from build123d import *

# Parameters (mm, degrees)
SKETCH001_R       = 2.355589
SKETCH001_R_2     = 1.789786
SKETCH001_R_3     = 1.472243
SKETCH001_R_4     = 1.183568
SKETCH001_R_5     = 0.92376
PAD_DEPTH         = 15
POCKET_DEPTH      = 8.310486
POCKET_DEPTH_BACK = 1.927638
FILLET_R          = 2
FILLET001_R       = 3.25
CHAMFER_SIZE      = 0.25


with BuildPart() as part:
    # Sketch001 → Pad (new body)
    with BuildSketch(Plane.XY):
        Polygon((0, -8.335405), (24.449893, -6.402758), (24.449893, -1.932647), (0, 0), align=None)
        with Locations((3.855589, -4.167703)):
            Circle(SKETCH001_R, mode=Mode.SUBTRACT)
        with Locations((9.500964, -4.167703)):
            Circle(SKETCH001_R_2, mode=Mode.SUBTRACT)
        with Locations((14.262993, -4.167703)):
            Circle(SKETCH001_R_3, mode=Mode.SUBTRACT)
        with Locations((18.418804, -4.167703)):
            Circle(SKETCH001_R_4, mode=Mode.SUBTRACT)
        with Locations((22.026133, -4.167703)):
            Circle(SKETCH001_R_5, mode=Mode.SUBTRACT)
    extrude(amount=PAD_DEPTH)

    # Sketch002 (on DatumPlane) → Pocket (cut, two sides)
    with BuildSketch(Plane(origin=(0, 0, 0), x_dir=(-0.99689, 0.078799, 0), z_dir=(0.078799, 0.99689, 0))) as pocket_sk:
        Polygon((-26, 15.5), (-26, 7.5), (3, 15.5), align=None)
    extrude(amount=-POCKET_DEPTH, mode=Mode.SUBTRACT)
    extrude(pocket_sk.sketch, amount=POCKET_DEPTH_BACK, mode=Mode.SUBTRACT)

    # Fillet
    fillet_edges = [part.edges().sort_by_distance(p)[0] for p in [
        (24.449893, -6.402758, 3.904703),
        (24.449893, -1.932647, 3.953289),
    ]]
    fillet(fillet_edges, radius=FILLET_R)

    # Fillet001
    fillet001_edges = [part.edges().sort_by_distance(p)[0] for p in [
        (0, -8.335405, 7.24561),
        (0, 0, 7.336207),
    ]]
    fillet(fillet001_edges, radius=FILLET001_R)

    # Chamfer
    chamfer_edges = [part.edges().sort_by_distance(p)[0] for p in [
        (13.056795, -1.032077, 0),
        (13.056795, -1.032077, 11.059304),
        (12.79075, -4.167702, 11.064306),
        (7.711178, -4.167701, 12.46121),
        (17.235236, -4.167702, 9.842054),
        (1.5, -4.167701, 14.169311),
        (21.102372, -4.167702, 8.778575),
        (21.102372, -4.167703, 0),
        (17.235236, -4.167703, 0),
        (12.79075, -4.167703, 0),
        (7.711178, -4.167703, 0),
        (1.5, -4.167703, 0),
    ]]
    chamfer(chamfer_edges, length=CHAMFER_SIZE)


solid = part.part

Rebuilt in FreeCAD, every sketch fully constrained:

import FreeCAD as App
import Part
import Sketcher


def edges_at(feature, points):
    """Names of the edges that pass closest to the given points."""
    edges = feature.Shape.Edges
    near = lambda p: min(range(len(edges)), key=lambda i: edges[i].distToShape(Part.Vertex(*p))[0])
    return sorted({f"Edge{near(p) + 1}" for p in points})

doc = App.newDocument("Part")
body = doc.addObject("PartDesign::Body", "Body")

# Sketch on XY plane
sketch1 = body.newObject("Sketcher::SketchObject", "Sketch")
sketch1.AttachmentSupport = (doc.getObject("XY_Plane"), [""])
sketch1.MapMode = "FlatFace"
sketch1.addGeometry([
    Part.LineSegment(App.Vector(0, -8.335405, 0), App.Vector(24.449893, -6.402758, 0)),  # 0
    Part.LineSegment(App.Vector(24.449893, -6.402758, 0), App.Vector(24.449893, -1.932647, 0)),  # 1
    Part.LineSegment(App.Vector(24.449893, -1.932647, 0), App.Vector(0, 0, 0)),  # 2
    Part.LineSegment(App.Vector(0, 0, 0), App.Vector(0, -8.335405, 0)),  # 3
    Part.Circle(App.Vector(3.855589, -4.167703, 0), App.Vector(0, 0, 1), 2.355589),  # 4
    Part.Circle(App.Vector(9.500964, -4.167703, 0), App.Vector(0, 0, 1), 1.789786),  # 5
    Part.Circle(App.Vector(14.262993, -4.167703, 0), App.Vector(0, 0, 1), 1.472243),  # 6
    Part.Circle(App.Vector(18.418804, -4.167703, 0), App.Vector(0, 0, 1), 1.183568),  # 7
    Part.Circle(App.Vector(22.026133, -4.167703, 0), App.Vector(0, 0, 1), 0.92376),  # 8
], False)
sketch1.addConstraint([
    Sketcher.Constraint("Coincident", 0, 2, 1, 1),
    Sketcher.Constraint("Coincident", 1, 2, 2, 1),
    Sketcher.Constraint("Coincident", 2, 2, 3, 1),
    Sketcher.Constraint("Coincident", 3, 2, 0, 1),
    Sketcher.Constraint("Vertical", 1),
    Sketcher.Constraint("Vertical", 3),
    Sketcher.Constraint("Coincident", 2, 2, -1, 1),
    Sketcher.Constraint("Horizontal", 4, 3, 5, 3),
    Sketcher.Constraint("Horizontal", 5, 3, 6, 3),
    Sketcher.Constraint("Horizontal", 6, 3, 7, 3),
    Sketcher.Constraint("Horizontal", 7, 3, 8, 3),
    Sketcher.Constraint("Equal", 0, 2),
    Sketcher.Constraint("Diameter", 4, 4.711178),
    Sketcher.Constraint("Diameter", 8, 1.84752),
    Sketcher.Constraint("Diameter", 5, 3.579572),
    Sketcher.Constraint("Diameter", 6, 2.944486),
    Sketcher.Constraint("Diameter", 7, 2.367136),
    Sketcher.Constraint("DistanceY", 1, 1, 1, 2, 4.470111),
    Sketcher.Constraint("DistanceX", 6, 3, 0, 2, 10.1869),
    Sketcher.Constraint("DistanceY", 3, 2, 4, 3, 4.167702),
    Sketcher.Constraint("DistanceY", 3, 2, 3, 1, 8.335405),
    Sketcher.Constraint("DistanceX", -1, 1, 4, 3, 3.855589),
    Sketcher.Constraint("DistanceX", 5, 3, 6, 3, 4.762029),
    Sketcher.Constraint("DistanceX", 6, 3, 7, 3, 4.155811),
    Sketcher.Constraint("DistanceX", 7, 3, 8, 3, 3.607329),
    Sketcher.Constraint("Distance", 0, 24.526157),
])
pad1 = body.newObject("PartDesign::Pad", "Pad")
pad1.Profile = sketch1
pad1.Length = 15

# Sketch on an angled plane
sketch2 = body.newObject("Sketcher::SketchObject", "Sketch001")
sketch2.Placement = App.Placement(App.Vector(0, 0, 0), App.Rotation(App.Vector(-0.996890521, 0.078799041, 0), App.Vector(0, 0, 1), App.Vector(0.078799041, 0.996890521, 0), "ZXY"))
sketch2.addGeometry([
    Part.LineSegment(App.Vector(-26, 15.5, 0), App.Vector(-26, 7.5, 0)),
    Part.LineSegment(App.Vector(-26, 7.5, 0), App.Vector(3, 15.5, 0)),
    Part.LineSegment(App.Vector(3, 15.5, 0), App.Vector(-26, 15.5, 0)),
], False)
sketch2.addConstraint([
    Sketcher.Constraint("Coincident", 0, 2, 1, 1),
    Sketcher.Constraint("Coincident", 1, 2, 2, 1),
    Sketcher.Constraint("Coincident", 2, 2, 0, 1),
    Sketcher.Constraint("Vertical", 0),
    Sketcher.Constraint("Horizontal", 2),
    Sketcher.Constraint("DistanceX", 2, 2, 2, 1, 29.0),
    Sketcher.Constraint("DistanceY", 0, 2, 0, 1, 8.0),
    Sketcher.Constraint("DistanceX", 0, 2, -1, 1, 26.0),
    Sketcher.Constraint("DistanceY", -1, 1, 0, 2, 7.5),
])
pocket1 = body.newObject("PartDesign::Pocket", "Pocket")
pocket1.Profile = sketch2
pocket1.Type = "ThroughAll"
pocket1.Midplane = True
doc.recompute()

fillet = body.newObject("PartDesign::Fillet", "Fillet")
fillet.Base = (pocket1, edges_at(pocket1, [(24.45, -6.403, 3.905), (24.45, -1.933, 3.953)]))
fillet.Radius = 2
doc.recompute()

fillet2 = body.newObject("PartDesign::Fillet", "Fillet001")
fillet2.Base = (fillet, edges_at(fillet, [(0, -8.335, 7.246), (0, 0, 7.336)]))
fillet2.Radius = 3.25
doc.recompute()

chamfer = body.newObject("PartDesign::Chamfer", "Chamfer")
chamfer.Base = (fillet2, edges_at(fillet2, [
    (13.057, -1.032, 0),
    (13.057, -1.032, 11.059),
    (12.791, -4.168, 11.064),
    (7.711, -4.168, 12.461),
    (17.235, -4.168, 9.842),
    (1.5, -4.168, 14.169),
    (21.102, -4.168, 8.779),
    (21.102, -4.168, 0),
    (17.235, -4.168, 0),
    (12.791, -4.168, 0),
    (7.711, -4.168, 0),
    (1.5, -4.168, 0),
]))
chamfer.Size = 0.25

doc.recompute()
